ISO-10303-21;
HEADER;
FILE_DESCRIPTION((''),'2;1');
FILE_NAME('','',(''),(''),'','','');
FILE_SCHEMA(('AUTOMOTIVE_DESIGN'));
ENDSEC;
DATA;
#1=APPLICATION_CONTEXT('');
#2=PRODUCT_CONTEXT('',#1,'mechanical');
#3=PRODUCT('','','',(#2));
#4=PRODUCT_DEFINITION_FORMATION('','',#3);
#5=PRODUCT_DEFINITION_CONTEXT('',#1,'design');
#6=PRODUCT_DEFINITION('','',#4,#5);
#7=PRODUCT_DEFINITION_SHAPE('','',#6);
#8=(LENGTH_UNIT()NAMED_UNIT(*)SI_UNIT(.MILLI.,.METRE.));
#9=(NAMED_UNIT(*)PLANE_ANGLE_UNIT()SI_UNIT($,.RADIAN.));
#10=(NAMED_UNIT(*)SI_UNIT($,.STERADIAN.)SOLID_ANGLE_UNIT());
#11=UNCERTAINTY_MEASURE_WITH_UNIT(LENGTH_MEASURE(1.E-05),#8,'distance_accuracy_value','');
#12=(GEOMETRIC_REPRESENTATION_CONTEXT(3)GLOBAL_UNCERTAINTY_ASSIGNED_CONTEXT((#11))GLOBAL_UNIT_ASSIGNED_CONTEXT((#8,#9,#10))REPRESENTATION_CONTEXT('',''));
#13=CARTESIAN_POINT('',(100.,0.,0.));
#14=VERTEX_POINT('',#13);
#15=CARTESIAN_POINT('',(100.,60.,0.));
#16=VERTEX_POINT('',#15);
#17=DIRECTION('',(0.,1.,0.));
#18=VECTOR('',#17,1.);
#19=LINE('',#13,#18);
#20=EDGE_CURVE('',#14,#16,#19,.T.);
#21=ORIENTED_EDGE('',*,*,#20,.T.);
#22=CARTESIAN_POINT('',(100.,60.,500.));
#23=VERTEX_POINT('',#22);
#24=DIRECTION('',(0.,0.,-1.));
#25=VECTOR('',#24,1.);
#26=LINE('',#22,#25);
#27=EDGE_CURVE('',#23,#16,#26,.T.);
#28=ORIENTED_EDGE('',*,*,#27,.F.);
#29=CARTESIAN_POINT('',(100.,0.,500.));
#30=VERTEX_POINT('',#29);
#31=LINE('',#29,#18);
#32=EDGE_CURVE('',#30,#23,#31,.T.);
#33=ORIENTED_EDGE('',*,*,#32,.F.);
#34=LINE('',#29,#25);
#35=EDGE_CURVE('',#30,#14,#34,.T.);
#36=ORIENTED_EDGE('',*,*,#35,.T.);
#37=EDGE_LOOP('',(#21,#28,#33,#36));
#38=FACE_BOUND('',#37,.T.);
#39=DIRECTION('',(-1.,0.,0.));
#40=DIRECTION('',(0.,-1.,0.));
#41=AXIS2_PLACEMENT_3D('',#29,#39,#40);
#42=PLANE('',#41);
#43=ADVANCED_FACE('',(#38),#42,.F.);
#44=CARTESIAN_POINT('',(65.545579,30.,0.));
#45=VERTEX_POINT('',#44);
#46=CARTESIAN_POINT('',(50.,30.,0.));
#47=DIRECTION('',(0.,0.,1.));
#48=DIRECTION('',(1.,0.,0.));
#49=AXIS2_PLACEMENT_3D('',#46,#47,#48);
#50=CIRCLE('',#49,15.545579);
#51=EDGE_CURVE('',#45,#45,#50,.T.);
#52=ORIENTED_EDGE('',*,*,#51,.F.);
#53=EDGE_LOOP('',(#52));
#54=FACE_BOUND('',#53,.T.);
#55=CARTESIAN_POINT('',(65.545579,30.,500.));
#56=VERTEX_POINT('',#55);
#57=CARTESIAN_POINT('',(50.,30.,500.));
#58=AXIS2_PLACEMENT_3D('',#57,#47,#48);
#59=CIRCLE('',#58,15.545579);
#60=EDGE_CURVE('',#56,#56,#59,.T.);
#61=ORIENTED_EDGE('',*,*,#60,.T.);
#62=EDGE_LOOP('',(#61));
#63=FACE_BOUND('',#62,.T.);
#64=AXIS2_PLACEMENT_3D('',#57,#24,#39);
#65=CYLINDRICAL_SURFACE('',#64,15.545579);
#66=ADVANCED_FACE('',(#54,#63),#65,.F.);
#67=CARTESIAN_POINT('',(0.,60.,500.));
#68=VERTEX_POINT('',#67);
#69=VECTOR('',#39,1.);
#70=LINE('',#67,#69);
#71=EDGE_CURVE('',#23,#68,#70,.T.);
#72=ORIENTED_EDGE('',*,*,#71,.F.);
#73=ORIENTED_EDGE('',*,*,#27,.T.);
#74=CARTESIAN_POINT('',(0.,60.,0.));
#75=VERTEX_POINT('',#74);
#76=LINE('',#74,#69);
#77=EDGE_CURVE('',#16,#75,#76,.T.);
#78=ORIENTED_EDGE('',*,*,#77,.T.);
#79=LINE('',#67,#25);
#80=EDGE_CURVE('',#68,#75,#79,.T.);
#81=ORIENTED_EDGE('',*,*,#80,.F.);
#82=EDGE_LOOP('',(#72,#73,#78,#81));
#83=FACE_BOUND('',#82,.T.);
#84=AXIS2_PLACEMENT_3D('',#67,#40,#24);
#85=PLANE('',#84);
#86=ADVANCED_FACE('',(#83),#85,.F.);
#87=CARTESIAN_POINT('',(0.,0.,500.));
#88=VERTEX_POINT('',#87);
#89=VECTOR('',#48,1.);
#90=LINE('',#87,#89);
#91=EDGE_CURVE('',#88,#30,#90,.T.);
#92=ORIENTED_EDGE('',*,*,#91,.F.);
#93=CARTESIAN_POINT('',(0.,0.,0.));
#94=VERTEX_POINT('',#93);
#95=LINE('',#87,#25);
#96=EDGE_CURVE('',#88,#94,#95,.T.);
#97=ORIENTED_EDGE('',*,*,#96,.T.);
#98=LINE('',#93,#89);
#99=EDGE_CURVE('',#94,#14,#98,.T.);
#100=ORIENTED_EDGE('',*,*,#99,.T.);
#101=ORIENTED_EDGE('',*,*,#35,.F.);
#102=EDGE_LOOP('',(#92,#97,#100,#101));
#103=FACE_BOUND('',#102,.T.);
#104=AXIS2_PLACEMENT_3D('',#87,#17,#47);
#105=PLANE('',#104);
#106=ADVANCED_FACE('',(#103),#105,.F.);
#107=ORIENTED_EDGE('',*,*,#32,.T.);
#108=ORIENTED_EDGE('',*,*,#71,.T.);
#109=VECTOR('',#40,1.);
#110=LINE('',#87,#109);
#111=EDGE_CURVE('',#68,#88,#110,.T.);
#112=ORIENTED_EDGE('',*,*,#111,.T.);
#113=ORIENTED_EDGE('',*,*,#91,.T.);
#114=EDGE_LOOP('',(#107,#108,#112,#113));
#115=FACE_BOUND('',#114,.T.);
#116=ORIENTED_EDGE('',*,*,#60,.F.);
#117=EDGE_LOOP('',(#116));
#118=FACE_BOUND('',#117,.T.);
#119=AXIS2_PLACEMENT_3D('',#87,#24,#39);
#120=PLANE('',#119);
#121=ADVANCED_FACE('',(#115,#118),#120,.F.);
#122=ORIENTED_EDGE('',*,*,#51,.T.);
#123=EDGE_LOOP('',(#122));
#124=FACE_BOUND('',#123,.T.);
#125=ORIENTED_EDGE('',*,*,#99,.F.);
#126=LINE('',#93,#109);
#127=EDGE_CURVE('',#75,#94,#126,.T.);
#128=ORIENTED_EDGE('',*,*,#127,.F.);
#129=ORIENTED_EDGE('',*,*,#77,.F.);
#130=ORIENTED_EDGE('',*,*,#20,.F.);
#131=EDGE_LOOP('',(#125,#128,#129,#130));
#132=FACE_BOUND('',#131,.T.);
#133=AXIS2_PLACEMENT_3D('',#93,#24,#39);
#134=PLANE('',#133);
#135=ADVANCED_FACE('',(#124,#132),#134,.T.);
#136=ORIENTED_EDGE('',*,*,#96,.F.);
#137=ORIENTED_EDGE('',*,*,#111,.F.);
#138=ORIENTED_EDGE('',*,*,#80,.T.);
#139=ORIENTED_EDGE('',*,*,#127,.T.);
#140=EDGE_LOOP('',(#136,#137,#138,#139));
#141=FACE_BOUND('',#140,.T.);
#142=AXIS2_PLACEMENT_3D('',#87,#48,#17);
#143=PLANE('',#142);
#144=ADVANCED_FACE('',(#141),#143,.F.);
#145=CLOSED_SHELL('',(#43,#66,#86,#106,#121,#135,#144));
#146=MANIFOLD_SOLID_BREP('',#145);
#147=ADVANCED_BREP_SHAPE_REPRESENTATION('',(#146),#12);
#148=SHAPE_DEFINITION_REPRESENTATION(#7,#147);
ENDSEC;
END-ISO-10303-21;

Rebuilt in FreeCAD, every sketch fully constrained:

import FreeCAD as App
import Part
import Sketcher

V = App.Vector
Q = App.Units.Quantity

doc = App.newDocument("Part")
body = doc.addObject("PartDesign::Body", "Body")

# Sketch on XY plane
sketch1 = body.newObject("Sketcher::SketchObject", "Sketch")
sketch1.AttachmentSupport = (doc.getObject("XY_Plane"), [""])
sketch1.MapMode = "FlatFace"
sketch1.addGeometry([
    Part.LineSegment(V(0, 60, 0), V(0, 0, 0)),  # 0
    Part.LineSegment(V(0, 0, 0), V(100, 0, 0)),  # 1
    Part.LineSegment(V(100, 0, 0), V(100, 60, 0)),  # 2
    Part.LineSegment(V(100, 60, 0), V(0, 60, 0)),  # 3
    Part.Circle(V(50, 30, 0), V(0, 0, 1), 16),  # 4
], False)
sketch1.addConstraint([
    Sketcher.Constraint("Coincident", 0, 2, 1, 1),
    Sketcher.Constraint("Coincident", 1, 2, 2, 1),
    Sketcher.Constraint("Coincident", 2, 2, 3, 1),
    Sketcher.Constraint("Coincident", 3, 2, 0, 1),
    Sketcher.Constraint("Vertical", 0),
    Sketcher.Constraint("Horizontal", 1),
    Sketcher.Constraint("Vertical", 2),
    Sketcher.Constraint("Horizontal", 3),
    Sketcher.Constraint("Coincident", 0, 2, -1, 1),
    Sketcher.Constraint("DistanceX", 1, 1, 1, 2, Q("100 mm")),
    Sketcher.Constraint("DistanceY", 0, 2, 0, 1, Q("60 mm")),
    Sketcher.Constraint("DistanceX", -1, 1, 4, 3, Q("50 mm")),
    Sketcher.Constraint("DistanceY", -1, 1, 4, 3, Q("30 mm")),
    Sketcher.Constraint("Diameter", 4, Q("31.091159 mm")),
])
pad1 = body.newObject("PartDesign::Pad", "Pad")
pad1.Profile = sketch1
pad1.Length = 500

doc.recompute()
